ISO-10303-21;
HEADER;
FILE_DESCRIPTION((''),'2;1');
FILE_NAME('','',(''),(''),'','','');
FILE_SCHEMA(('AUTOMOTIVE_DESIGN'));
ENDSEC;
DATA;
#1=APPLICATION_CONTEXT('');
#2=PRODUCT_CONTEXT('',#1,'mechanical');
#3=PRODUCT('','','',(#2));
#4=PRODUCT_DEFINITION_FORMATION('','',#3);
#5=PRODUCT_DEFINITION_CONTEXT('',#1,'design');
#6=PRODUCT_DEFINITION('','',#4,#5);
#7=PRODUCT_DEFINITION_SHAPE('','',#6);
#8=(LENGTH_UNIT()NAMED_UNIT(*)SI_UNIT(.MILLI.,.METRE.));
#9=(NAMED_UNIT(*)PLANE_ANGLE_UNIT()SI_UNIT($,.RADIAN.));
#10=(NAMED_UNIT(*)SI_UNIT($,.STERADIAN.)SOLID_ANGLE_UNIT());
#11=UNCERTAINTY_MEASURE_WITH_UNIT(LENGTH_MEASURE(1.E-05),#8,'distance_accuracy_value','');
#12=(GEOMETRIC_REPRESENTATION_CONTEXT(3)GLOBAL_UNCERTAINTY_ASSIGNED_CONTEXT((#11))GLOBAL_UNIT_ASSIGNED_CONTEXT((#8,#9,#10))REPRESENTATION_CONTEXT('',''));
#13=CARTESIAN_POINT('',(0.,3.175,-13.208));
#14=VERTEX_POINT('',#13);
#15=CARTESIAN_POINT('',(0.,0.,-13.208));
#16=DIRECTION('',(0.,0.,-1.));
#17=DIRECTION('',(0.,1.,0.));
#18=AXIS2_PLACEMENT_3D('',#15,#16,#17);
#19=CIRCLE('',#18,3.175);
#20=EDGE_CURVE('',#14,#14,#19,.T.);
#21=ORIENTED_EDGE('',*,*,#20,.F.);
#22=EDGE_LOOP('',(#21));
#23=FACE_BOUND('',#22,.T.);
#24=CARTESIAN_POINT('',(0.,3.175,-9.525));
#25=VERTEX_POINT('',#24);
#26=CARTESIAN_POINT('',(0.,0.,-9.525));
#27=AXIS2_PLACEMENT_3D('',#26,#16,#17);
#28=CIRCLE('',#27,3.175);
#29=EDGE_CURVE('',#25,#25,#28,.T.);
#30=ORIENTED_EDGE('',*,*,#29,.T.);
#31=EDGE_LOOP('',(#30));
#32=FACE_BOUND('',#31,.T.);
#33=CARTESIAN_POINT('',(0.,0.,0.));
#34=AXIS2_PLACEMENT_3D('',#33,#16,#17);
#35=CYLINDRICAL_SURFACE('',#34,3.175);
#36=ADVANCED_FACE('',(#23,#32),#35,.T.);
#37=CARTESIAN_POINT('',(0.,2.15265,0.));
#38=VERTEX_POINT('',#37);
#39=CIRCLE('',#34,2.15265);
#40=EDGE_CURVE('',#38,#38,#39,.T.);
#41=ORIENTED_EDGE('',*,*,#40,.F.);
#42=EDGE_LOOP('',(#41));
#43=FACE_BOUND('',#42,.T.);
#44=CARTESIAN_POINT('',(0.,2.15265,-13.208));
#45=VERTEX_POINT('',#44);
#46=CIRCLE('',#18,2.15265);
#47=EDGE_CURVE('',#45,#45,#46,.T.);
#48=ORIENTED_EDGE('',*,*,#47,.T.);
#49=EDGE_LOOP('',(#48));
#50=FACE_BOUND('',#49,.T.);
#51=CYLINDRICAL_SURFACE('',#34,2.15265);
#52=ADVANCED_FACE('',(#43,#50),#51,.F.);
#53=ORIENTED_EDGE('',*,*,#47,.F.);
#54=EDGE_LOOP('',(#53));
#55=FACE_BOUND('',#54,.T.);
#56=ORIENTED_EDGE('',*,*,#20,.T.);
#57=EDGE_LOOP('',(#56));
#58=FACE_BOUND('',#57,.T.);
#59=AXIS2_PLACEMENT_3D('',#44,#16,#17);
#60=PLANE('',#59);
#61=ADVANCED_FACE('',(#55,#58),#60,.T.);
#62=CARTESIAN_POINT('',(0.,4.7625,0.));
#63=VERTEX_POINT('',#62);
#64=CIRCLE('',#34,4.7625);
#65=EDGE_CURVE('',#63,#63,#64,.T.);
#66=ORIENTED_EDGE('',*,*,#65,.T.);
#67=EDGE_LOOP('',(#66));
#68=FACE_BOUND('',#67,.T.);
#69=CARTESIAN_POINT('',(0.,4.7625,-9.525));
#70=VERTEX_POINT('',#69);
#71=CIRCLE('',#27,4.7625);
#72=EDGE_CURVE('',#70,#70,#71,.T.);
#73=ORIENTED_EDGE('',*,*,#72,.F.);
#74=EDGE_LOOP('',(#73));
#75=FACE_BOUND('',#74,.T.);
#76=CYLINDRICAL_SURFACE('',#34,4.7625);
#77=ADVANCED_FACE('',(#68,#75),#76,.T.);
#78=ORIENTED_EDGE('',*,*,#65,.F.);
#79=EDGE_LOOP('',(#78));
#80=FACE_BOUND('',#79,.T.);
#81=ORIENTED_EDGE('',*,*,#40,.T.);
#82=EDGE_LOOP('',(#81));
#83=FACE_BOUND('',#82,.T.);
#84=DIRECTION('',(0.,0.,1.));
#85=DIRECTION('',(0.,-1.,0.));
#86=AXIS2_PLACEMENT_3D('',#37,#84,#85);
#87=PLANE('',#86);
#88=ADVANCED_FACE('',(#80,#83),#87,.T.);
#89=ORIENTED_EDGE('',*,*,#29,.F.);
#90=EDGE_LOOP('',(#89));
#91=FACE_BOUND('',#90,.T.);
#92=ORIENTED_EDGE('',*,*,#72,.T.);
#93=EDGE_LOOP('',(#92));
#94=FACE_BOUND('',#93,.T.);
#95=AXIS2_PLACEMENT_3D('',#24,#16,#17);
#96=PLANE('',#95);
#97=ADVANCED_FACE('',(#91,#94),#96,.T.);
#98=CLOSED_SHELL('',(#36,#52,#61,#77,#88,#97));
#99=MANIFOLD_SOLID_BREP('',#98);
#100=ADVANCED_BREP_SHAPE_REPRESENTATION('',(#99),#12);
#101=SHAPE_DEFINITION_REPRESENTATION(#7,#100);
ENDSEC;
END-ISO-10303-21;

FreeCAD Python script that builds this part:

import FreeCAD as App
import Part
import Sketcher
from FreeCAD import Vector
Q = App.Units.Quantity


def add_polygon(sketch, points):
    """Adds a closed chain of lines whose ends are joined by coincident constraints."""
    first, n = sketch.GeometryCount, len(points)
    for a, b in zip(points, points[1:] + points[:1]):
        sketch.addGeometry(Part.LineSegment(App.Vector(*a, 0), App.Vector(*b, 0)), False)
    for i in range(n):
        sketch.addConstraint(Sketcher.Constraint("Coincident", first + i, 2, first + (i + 1) % n, 1))

doc = App.newDocument("Part")
body = doc.addObject("PartDesign::Body", "Body")

sketch1 = body.newObject("Sketcher::SketchObject", "Sketch")
sketch1.AttachmentSupport = (doc.getObject("YZ_Plane"), [""])
sketch1.MapMode = "FlatFace"
add_polygon(sketch1, [(2.2, 0), (2.2, -13.2), (3.2, -13.2), (3.2, -9.5), (4.8, -9.5), (4.8, 0)])
sketch1.addConstraint(Sketcher.Constraint("Vertical", 0))
sketch1.addConstraint(Sketcher.Constraint("Horizontal", 1))
sketch1.addConstraint(Sketcher.Constraint("Vertical", 2))
sketch1.addConstraint(Sketcher.Constraint("Horizontal", 3))
sketch1.addConstraint(Sketcher.Constraint("Vertical", 4))
sketch1.addConstraint(Sketcher.Constraint("Horizontal", 5))
sketch1.addConstraint(Sketcher.Constraint("PointOnObject", 4, 2, -1))
sketch1.addConstraint(Sketcher.Constraint("DistanceY", 0, 2, 0, 1, Q("0.52 in")))
sketch1.addConstraint(Sketcher.Constraint("DistanceX", 3, 1, 3, 2, Q("0.0625 in")))
sketch1.addConstraint(Sketcher.Constraint("DistanceY", 2, 1, 2, 2, Q("0.145 in")))
sketch1.addConstraint(Sketcher.Constraint("DistanceX", -1, 1, 1, 2, Q("0.125 in")))
sketch1.addConstraint(Sketcher.Constraint("DistanceX", 1, 1, 1, 2, 1.02235))
revolution = body.newObject("PartDesign::Revolution", "Revolution")
revolution.Profile = sketch1
revolution.ReferenceAxis = (sketch1, ["V_Axis"])
revolution.Angle = 360

doc.recompute()
